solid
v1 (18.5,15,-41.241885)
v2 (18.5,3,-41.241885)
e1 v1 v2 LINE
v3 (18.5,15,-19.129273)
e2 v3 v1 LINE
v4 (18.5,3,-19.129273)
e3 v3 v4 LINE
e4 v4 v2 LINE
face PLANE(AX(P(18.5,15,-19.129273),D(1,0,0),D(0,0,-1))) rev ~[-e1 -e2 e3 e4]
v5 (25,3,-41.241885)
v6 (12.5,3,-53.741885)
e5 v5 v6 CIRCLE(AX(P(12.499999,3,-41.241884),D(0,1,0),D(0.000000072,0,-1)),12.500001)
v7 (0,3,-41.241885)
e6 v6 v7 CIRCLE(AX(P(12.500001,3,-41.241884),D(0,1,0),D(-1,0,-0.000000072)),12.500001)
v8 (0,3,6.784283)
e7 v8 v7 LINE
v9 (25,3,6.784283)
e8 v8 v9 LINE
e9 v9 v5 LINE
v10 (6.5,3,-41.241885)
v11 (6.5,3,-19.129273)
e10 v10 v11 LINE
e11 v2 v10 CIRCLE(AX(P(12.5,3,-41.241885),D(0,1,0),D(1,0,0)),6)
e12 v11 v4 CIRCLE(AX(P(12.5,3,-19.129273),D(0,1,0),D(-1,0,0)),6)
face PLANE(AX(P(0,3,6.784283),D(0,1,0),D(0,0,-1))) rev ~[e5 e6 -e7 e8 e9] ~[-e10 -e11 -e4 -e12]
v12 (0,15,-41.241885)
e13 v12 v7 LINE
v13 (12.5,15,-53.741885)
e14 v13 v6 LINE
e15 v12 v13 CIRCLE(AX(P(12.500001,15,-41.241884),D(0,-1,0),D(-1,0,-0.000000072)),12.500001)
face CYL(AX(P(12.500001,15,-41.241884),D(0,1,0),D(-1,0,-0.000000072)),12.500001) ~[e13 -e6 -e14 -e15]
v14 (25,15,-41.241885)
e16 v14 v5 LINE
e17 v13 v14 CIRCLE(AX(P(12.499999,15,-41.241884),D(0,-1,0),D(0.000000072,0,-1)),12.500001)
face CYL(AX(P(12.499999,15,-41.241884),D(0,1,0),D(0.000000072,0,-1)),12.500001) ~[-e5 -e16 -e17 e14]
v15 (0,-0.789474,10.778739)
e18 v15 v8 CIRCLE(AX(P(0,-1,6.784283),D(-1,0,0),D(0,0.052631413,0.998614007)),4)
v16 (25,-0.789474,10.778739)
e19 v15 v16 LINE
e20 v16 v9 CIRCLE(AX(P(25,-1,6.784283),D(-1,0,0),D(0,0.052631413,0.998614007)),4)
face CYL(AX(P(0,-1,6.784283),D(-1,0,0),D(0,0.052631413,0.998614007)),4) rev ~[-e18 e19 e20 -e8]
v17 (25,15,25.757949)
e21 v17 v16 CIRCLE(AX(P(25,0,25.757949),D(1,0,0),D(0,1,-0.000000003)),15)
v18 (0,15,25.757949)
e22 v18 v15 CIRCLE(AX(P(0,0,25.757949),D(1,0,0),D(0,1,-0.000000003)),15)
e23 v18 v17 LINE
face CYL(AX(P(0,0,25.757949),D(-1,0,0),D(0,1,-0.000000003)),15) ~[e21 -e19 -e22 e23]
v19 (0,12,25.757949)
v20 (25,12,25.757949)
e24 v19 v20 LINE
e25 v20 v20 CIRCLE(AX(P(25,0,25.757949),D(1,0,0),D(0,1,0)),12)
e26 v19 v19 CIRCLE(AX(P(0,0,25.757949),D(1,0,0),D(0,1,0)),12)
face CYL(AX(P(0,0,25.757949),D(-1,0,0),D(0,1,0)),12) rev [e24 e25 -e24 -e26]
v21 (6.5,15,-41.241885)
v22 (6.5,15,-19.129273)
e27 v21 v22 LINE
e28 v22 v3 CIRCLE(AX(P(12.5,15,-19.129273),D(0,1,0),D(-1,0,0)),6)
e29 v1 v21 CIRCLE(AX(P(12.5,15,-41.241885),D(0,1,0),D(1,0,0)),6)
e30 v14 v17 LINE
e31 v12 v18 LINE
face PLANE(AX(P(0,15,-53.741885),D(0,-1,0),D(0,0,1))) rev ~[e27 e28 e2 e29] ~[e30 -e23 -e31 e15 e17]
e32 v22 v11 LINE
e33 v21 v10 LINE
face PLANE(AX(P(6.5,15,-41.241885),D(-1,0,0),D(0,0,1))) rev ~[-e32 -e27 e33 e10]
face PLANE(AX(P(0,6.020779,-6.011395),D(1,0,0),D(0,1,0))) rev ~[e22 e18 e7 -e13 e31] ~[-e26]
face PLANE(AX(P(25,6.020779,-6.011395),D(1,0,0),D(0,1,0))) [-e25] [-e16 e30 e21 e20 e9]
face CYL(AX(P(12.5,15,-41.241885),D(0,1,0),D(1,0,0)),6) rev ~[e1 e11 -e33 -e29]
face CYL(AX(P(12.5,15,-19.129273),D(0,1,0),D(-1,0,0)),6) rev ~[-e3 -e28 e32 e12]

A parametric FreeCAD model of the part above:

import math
import FreeCAD as App
import Part
import Sketcher
Q = App.Units.Quantity

doc = App.newDocument("Part")
body = doc.addObject("PartDesign::Body", "Body")

sketch1 = body.newObject("Sketcher::SketchObject", "Sketch")
sketch1.AttachmentSupport = (doc.getObject("YZ_Plane"), [""])
sketch1.MapMode = "FlatFace"
sketch1.addGeometry(Part.LineSegment(App.Vector(15, -53.7, 0), App.Vector(15, 25.8, 0)), False)
sketch1.addGeometry(Part.ArcOfCircle(Part.Circle(App.Vector(0, 25.8, 0), App.Vector(0, 0, 1), 15), math.radians(0), math.radians(267)), False)
sketch1.addGeometry(Part.ArcOfCircle(Part.Circle(App.Vector(-1, 6.8, 0), App.Vector(0, 0, 1), 4), math.radians(0), math.radians(87)), False)
sketch1.addGeometry(Part.LineSegment(App.Vector(3, 6.8, 0), App.Vector(3, -53.7, 0)), False)
sketch1.addGeometry(Part.LineSegment(App.Vector(3, -53.7, 0), App.Vector(15, -53.7, 0)), False)
sketch1.addGeometry(Part.Circle(App.Vector(0, 25.8, 0), App.Vector(0, 0, 1), 12), False)
sketch1.addConstraint(Sketcher.Constraint("Tangent", 0, 2, 1, 1))
sketch1.addConstraint(Sketcher.Constraint("Tangent", 1, 2, 2, 2))
sketch1.addConstraint(Sketcher.Constraint("Tangent", 2, 1, 3, 1))
sketch1.addConstraint(Sketcher.Constraint("Coincident", 3, 2, 4, 1))
sketch1.addConstraint(Sketcher.Constraint("Coincident", 4, 2, 0, 1))
sketch1.addConstraint(Sketcher.Constraint("Vertical", 0))
sketch1.addConstraint(Sketcher.Constraint("Vertical", 3))
sketch1.addConstraint(Sketcher.Constraint("Horizontal", 4))
sketch1.addConstraint(Sketcher.Constraint("Coincident", 5, 3, 1, 3))
sketch1.addConstraint(Sketcher.Constraint("PointOnObject", 1, 3, -2))
sketch1.addConstraint(Sketcher.Constraint("Diameter", 5, Q("24 mm")))
sketch1.addConstraint(Sketcher.Constraint("Radius", 1, Q("15 mm")))
sketch1.addConstraint(Sketcher.Constraint("Radius", 2, Q("4 mm")))
sketch1.addConstraint(Sketcher.Constraint("DistanceX", 4, 1, 4, 2, Q("12 mm")))
sketch1.addConstraint(Sketcher.Constraint("DistanceY", 3, 2, 3, 1, Q("60.526168 mm")))
sketch1.addConstraint(Sketcher.Constraint("DistanceY", -1, 1, 1, 3, Q("25.757949 mm")))
pad1 = body.newObject("PartDesign::Pad", "Pad")
pad1.Profile = sketch1
pad1.Length = 25

sketch2 = body.newObject("Sketcher::SketchObject", "Sketch001")
sketch2.AttachmentSupport = (doc.getObject("XZ_Plane"), [""])
sketch2.MapMode = "FlatFace"
sketch2.AttachmentOffset = App.Placement(App.Vector(0, 0, -15), App.Rotation())
sketch2.addGeometry(Part.LineSegment(App.Vector(0, -54, 0), App.Vector(0, -41, 0)), False)
sketch2.addGeometry(Part.ArcOfCircle(Part.Circle(App.Vector(13, -41, 0), App.Vector(0, 0, 1), 13), math.radians(-180), math.radians(-90)), False)
sketch2.addGeometry(Part.LineSegment(App.Vector(12, -54, 0), App.Vector(0, -54, 0)), False)
sketch2.addGeometry(Part.LineSegment(App.Vector(25, -54, 0), App.Vector(12, -54, 0)), False)
sketch2.addGeometry(Part.ArcOfCircle(Part.Circle(App.Vector(12, -41, 0), App.Vector(0, 0, 1), 13), math.radians(-90), math.radians(0)), False)
sketch2.addGeometry(Part.LineSegment(App.Vector(25, -41, 0), App.Vector(25, -54, 0)), False)
sketch2.addGeometry(Part.LineSegment(App.Vector(6, -41, 0), App.Vector(6, -19, 0)), False)
sketch2.addGeometry(Part.ArcOfCircle(Part.Circle(App.Vector(12, -19, 0), App.Vector(0, 0, 1), 6), math.radians(0), math.radians(180)), False)
sketch2.addGeometry(Part.LineSegment(App.Vector(18, -19, 0), App.Vector(18, -41, 0)), False)
sketch2.addGeometry(Part.ArcOfCircle(Part.Circle(App.Vector(12, -41, 0), App.Vector(0, 0, 1), 6), math.radians(180), math.radians(360)), False)
sketch2.addConstraint(Sketcher.Constraint("Tangent", 0, 2, 1, 1))
sketch2.addConstraint(Sketcher.Constraint("Tangent", 1, 2, 2, 1))
sketch2.addConstraint(Sketcher.Constraint("Coincident", 2, 2, 0, 1))
sketch2.addConstraint(Sketcher.Constraint("Tangent", 3, 2, 4, 1))
sketch2.addConstraint(Sketcher.Constraint("Tangent", 4, 2, 5, 1))
sketch2.addConstraint(Sketcher.Constraint("Coincident", 5, 2, 3, 1))
sketch2.addConstraint(Sketcher.Constraint("Tangent", 6, 2, 7, 2))
sketch2.addConstraint(Sketcher.Constraint("Tangent", 7, 1, 8, 1))
sketch2.addConstraint(Sketcher.Constraint("Tangent", 8, 2, 9, 2))
sketch2.addConstraint(Sketcher.Constraint("Tangent", 9, 1, 6, 1))
sketch2.addConstraint(Sketcher.Constraint("Vertical", 0))
sketch2.addConstraint(Sketcher.Constraint("Horizontal", 2))
sketch2.addConstraint(Sketcher.Constraint("Horizontal", 3))
sketch2.addConstraint(Sketcher.Constraint("Vertical", 5))
sketch2.addConstraint(Sketcher.Constraint("Vertical", 6))
sketch2.addConstraint(Sketcher.Constraint("Vertical", 8))
sketch2.addConstraint(Sketcher.Constraint("Coincident", 4, 3, 1, 3))
sketch2.addConstraint(Sketcher.Constraint("Coincident", 9, 3, 1, 3))
sketch2.addConstraint(Sketcher.Constraint("Equal", 1, 4))
sketch2.addConstraint(Sketcher.Constraint("PointOnObject", 0, 2, -2))
sketch2.addConstraint(Sketcher.Constraint("Radius", 7, Q("6 mm")))
sketch2.addConstraint(Sketcher.Constraint("Radius", 1, Q("12.500001 mm")))
sketch2.addConstraint(Sketcher.Constraint("DistanceY", 6, 1, 6, 2, Q("22.112612 mm")))
sketch2.addConstraint(Sketcher.Constraint("DistanceY", 1, 3, -1, 1, Q("41.241884 mm")))
pocket1 = body.newObject("PartDesign::Pocket", "Pocket")
pocket1.Profile = sketch2
pocket1.Length = 25
pocket1.Reversed = True

doc.recompute()
